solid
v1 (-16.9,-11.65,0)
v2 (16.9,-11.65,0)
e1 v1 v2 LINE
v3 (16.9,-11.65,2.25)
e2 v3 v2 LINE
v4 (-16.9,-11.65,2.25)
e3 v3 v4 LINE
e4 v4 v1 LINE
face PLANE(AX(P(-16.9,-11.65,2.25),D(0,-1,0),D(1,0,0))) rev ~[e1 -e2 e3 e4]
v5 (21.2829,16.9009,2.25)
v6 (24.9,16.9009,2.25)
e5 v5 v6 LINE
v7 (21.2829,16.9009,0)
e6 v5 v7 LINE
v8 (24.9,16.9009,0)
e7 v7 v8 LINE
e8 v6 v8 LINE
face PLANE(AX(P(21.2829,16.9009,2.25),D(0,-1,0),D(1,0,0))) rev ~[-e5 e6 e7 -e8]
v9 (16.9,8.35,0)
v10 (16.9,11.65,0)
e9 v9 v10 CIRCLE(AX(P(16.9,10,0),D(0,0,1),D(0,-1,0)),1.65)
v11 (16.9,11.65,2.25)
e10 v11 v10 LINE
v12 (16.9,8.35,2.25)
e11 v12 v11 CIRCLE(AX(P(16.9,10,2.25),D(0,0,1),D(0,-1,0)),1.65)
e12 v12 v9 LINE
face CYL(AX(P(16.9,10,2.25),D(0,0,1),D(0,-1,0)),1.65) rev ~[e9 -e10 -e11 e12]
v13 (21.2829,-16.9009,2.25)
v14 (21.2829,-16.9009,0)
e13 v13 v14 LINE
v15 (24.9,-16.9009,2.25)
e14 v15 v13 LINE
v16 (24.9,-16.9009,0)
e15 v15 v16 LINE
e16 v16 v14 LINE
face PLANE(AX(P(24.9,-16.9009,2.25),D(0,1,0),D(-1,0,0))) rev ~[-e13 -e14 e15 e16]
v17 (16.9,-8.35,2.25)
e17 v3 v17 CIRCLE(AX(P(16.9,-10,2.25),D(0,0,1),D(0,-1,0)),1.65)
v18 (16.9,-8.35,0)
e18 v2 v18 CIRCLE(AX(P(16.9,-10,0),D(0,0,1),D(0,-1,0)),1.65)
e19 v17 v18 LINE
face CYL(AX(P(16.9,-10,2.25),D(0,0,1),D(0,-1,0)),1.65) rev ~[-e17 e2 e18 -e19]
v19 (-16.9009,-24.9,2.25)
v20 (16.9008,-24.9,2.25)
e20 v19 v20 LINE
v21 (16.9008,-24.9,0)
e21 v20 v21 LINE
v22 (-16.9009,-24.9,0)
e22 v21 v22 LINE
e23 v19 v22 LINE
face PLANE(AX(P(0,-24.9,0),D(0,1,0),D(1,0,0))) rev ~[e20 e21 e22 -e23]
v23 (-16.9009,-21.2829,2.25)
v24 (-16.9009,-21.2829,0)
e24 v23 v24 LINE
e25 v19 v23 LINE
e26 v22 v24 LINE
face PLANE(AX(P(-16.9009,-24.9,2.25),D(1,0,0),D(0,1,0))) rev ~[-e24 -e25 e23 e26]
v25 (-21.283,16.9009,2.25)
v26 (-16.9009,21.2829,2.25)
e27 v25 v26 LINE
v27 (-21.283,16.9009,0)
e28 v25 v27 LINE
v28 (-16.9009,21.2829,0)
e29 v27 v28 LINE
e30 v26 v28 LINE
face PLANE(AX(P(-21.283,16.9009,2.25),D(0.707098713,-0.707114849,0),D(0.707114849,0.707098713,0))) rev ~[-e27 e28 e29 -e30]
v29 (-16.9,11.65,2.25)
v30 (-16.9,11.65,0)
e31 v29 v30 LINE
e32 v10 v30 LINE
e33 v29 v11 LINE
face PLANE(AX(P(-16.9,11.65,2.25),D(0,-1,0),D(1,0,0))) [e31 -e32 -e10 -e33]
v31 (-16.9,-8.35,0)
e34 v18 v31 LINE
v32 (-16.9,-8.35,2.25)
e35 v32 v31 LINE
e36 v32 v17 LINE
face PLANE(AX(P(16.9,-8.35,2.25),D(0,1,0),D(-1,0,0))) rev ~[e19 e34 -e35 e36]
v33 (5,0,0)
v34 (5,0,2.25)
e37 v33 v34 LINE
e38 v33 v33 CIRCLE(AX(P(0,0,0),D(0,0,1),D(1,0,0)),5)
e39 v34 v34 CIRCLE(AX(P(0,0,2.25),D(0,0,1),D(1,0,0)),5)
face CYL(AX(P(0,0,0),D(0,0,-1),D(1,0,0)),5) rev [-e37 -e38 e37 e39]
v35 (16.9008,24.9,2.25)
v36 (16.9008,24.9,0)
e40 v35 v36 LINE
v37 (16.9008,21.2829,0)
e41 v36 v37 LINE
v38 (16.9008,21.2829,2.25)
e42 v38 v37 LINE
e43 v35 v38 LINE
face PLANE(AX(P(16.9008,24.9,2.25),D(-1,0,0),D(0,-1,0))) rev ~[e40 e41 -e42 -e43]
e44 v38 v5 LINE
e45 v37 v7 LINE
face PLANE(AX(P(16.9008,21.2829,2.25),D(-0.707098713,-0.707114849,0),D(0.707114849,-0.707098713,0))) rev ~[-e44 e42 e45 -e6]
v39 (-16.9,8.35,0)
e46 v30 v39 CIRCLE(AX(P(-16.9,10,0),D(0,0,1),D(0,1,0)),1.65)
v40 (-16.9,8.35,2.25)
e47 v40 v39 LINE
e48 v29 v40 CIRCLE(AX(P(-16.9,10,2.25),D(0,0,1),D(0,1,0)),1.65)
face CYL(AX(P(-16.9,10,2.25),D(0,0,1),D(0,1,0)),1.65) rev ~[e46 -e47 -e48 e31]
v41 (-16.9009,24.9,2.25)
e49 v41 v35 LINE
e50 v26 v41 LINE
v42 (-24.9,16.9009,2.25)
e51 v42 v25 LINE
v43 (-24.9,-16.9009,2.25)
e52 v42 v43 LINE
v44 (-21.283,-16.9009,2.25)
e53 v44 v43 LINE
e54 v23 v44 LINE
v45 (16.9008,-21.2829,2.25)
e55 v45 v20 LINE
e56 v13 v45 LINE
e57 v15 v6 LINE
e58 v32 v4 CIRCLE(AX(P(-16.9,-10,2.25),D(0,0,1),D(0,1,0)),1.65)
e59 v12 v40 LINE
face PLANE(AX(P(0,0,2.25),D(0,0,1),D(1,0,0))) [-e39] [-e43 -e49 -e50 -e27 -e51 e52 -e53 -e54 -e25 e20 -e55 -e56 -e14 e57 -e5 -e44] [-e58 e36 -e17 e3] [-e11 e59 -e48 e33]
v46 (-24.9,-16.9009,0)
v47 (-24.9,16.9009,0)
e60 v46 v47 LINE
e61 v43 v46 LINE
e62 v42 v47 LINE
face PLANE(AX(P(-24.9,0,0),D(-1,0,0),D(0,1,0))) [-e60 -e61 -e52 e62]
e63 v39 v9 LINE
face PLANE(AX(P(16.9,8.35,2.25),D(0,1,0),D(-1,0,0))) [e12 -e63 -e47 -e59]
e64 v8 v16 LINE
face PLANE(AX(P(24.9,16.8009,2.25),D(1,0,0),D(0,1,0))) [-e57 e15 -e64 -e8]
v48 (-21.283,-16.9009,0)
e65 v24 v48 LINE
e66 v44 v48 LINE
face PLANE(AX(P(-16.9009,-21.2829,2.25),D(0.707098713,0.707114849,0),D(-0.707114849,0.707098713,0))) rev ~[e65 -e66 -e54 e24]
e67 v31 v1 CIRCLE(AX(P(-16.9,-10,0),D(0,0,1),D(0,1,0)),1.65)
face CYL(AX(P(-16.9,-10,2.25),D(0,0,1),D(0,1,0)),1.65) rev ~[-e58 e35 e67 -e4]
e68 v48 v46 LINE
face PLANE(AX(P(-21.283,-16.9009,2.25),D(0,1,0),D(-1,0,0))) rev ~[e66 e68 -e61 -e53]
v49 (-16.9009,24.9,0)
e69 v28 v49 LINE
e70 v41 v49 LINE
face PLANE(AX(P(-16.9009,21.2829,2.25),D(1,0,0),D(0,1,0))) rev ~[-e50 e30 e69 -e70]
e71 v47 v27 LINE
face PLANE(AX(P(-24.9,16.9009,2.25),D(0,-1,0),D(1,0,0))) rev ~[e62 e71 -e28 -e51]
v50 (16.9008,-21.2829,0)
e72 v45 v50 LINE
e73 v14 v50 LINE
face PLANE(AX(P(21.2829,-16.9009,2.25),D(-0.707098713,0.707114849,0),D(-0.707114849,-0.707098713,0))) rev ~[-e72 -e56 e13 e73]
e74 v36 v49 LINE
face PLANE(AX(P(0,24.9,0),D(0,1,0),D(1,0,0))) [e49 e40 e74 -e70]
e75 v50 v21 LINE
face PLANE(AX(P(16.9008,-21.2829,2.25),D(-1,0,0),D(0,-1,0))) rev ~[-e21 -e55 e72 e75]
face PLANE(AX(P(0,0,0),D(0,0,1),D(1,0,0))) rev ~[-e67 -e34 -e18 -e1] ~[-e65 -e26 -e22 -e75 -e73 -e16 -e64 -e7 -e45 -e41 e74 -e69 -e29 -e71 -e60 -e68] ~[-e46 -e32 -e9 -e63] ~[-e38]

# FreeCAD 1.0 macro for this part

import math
import FreeCAD as App
import Part
import Sketcher
from FreeCAD import Vector
Q = App.Units.Quantity


def add_polygon(sketch, points):
    """Adds a closed chain of lines whose ends are joined by coincident constraints."""
    first, n = sketch.GeometryCount, len(points)
    for a, b in zip(points, points[1:] + points[:1]):
        sketch.addGeometry(Part.LineSegment(App.Vector(*a, 0), App.Vector(*b, 0)), False)
    for i in range(n):
        sketch.addConstraint(Sketcher.Constraint("Coincident", first + i, 2, first + (i + 1) % n, 1))

doc = App.newDocument("Part")
params = doc.addObject("Spreadsheet::Sheet", "Params")
for row, (alias, value) in enumerate([
    ("sketch1_diameter", "10 mm"),
    ("sketch1_length", "6.28 mm"),
    ("pad1_length", "2.25 mm"),
    ("sketch2_diameter", "3.3 mm"),
    ("hole_diameter", "3.3 mm"),
    ("hole_depth", "12 mm"),
    ("sketch3_radius", "1.65 mm"),
    ("sketch3_width", "33.8 mm"),
    ("sketch4_width", "0.1 mm"),
    ("sketch4_length", "6.28 mm"),
    ("pad2_length", "2.25 mm"),
], start=1):
    params.set(f"A{row}", alias)
    params.set(f"B{row}", "=" + value)
    params.setAlias(f"B{row}", alias)

body = doc.addObject("PartDesign::Body", "Body")

# Sketch on XY plane
sketch1 = body.newObject("Sketcher::SketchObject", "Sketch")
sketch1.AttachmentSupport = (doc.getObject("XY_Plane"), [""])
sketch1.MapMode = "FlatFace"
add_polygon(sketch1, [(16.8, 24.9), (-16.8, 24.9), (-16.8, 21.2), (-21.2, 16.8), (-24.9, 16.8), (-24.9, -16.8), (-21.2, -16.8), (-16.8, -21.2), (-16.8, -24.9), (16.8, -24.9), (16.8, -21.2), (21.2, -16.8), (24.9, -16.8), (24.9, 16.8), (21.2, 16.8), (16.8, 21.2)])  # lines 0-15
sketch1.addGeometry(Part.Circle(Vector(0, 0, 0), Vector(0, 0, 1), 5), False)  # 16
sketch1.addConstraint(Sketcher.Constraint("Horizontal", 0))
sketch1.addConstraint(Sketcher.Constraint("Vertical", 1))
sketch1.addConstraint(Sketcher.Constraint("Horizontal", 3))
sketch1.addConstraint(Sketcher.Constraint("Vertical", 4))
sketch1.addConstraint(Sketcher.Constraint("Horizontal", 5))
sketch1.addConstraint(Sketcher.Constraint("Vertical", 7))
sketch1.addConstraint(Sketcher.Constraint("Horizontal", 8))
sketch1.addConstraint(Sketcher.Constraint("Vertical", 9))
sketch1.addConstraint(Sketcher.Constraint("Horizontal", 11))
sketch1.addConstraint(Sketcher.Constraint("Vertical", 12))
sketch1.addConstraint(Sketcher.Constraint("Horizontal", 13))
sketch1.addConstraint(Sketcher.Constraint("Vertical", 15))
sketch1.addConstraint(Sketcher.Constraint("Coincident", 16, 3, -1, 1))
sketch1.addConstraint(Sketcher.Constraint("Symmetric", 0, 2, 8, 2, -1, 1))
sketch1.addConstraint(Sketcher.Constraint("Symmetric", 2, 2, 10, 2, -1, 1))
sketch1.addConstraint(Sketcher.Constraint("Symmetric", 4, 2, 12, 2, -1, 1))
sketch1.addConstraint(Sketcher.Constraint("Symmetric", 6, 2, 14, 2, -1, 1))
sketch1.addConstraint(Sketcher.Constraint("Symmetric", 6, 2, 9, 2, -2))
sketch1.addConstraint(Sketcher.Constraint("Symmetric", 5, 2, 10, 2, -2))
sketch1.addConstraint(Sketcher.Constraint("Perpendicular", 2, 6))
sketch1.addConstraint(Sketcher.Constraint("Perpendicular", 6, 10))
sketch1.addConstraint(Sketcher.Constraint("Perpendicular", 10, 14))
sketch1.addConstraint(Sketcher.Constraint("Equal", 13, 1))
sketch1.addConstraint(Sketcher.Constraint("Equal", 8, 4))
sketch1.addConstraint(Sketcher.Constraint("Diameter", 16, Q("10 mm")))
sketch1.addConstraint(Sketcher.Constraint("DistanceY", -1, 1, 0, 2, Q("24.9 mm")))
sketch1.addConstraint(Sketcher.Constraint("Distance", 2, Q("6.28 mm")))
sketch1.addConstraint(Sketcher.Constraint("DistanceX", 0, 2, 0, 1, Q("33.6018 mm")))
sketch1.setExpression("Constraints[40]", "Params.sketch1_diameter")
sketch1.setExpression("Constraints[42]", "Params.sketch1_length")
pad1 = body.newObject("PartDesign::Pad", "Pad")
pad1.Profile = sketch1
pad1.setExpression("Length", "Params.pad1_length")

# Sketch on XY plane
sketch2 = body.newObject("Sketcher::SketchObject", "Sketch001")
sketch2.AttachmentSupport = (doc.getObject("XY_Plane"), [""])
sketch2.MapMode = "FlatFace"
sketch2.addGeometry(Part.Circle(Vector(9.7, -10, 0), Vector(0, 0, 1), 1.6), False)
sketch2.addGeometry(Part.Circle(Vector(9.7, 10, 0), Vector(0, 0, 1), 1.6), False)
sketch2.addConstraint(Sketcher.Constraint("Equal", 0, 1))
sketch2.addConstraint(Sketcher.Constraint("Symmetric", 0, 3, 1, 3, -1))
sketch2.addConstraint(Sketcher.Constraint("Diameter", 0, Q("3.3 mm")))
sketch2.addConstraint(Sketcher.Constraint("DistanceY", 0, 3, -1, 1, Q("10 mm")))
sketch2.addConstraint(Sketcher.Constraint("DistanceX", -1, 1, 0, 3, Q("9.7 mm")))
sketch2.setExpression("Constraints[2]", "Params.sketch2_diameter")
doc.recompute()
hole = body.newObject("PartDesign::Hole", "Hole")
hole.Profile = sketch2
hole.ThreadType = "None"
hole.setExpression("Diameter", "Params.hole_diameter")
hole.DepthType = "Dimension"
hole.setExpression("Depth", "Params.hole_depth")
hole.DrillPoint = "Angled"
hole.DrillPointAngle = 118
hole.Reversed = True

# Sketch on XY plane
sketch3 = body.newObject("Sketcher::SketchObject", "Sketch002")
sketch3.AttachmentSupport = (doc.getObject("XY_Plane"), [""])
sketch3.MapMode = "FlatFace"
sketch3.AttachmentOffset = App.Placement(Vector(0, 0, 2.25), App.Rotation())
sketch3.addGeometry(Part.LineSegment(Vector(-16.9, 8.3, 0), Vector(16.9, 8.3, 0)), False)
sketch3.addGeometry(Part.ArcOfCircle(Part.Circle(Vector(16.9, 10, 0), Vector(0, 0, 1), 1.7), math.radians(-90), math.radians(90)), False)
sketch3.addGeometry(Part.LineSegment(Vector(16.9, 11.7, 0), Vector(-16.9, 11.7, 0)), False)
sketch3.addGeometry(Part.ArcOfCircle(Part.Circle(Vector(-16.9, 10, 0), Vector(0, 0, 1), 1.7), math.radians(90), math.radians(270)), False)
sketch3.addGeometry(Part.ArcOfCircle(Part.Circle(Vector(16.9, -10, 0), Vector(0, 0, 1), 1.6), math.radians(-90), math.radians(90)), False)
sketch3.addGeometry(Part.LineSegment(Vector(16.9, -8.3, 0), Vector(-16.9, -8.3, 0)), False)
sketch3.addGeometry(Part.ArcOfCircle(Part.Circle(Vector(-16.9, -10, 0), Vector(0, 0, 1), 1.6), math.radians(90), math.radians(270)), False)
sketch3.addGeometry(Part.LineSegment(Vector(-16.9, -11.7, 0), Vector(16.9, -11.7, 0)), False)
sketch3.addConstraint(Sketcher.Constraint("Tangent", 0, 2, 1, 1))
sketch3.addConstraint(Sketcher.Constraint("Tangent", 1, 2, 2, 1))
sketch3.addConstraint(Sketcher.Constraint("Tangent", 2, 2, 3, 1))
sketch3.addConstraint(Sketcher.Constraint("Tangent", 3, 2, 0, 1))
sketch3.addConstraint(Sketcher.Constraint("Tangent", 4, 2, 5, 1))
sketch3.addConstraint(Sketcher.Constraint("Tangent", 5, 2, 6, 1))
sketch3.addConstraint(Sketcher.Constraint("Tangent", 6, 2, 7, 1))
sketch3.addConstraint(Sketcher.Constraint("Tangent", 7, 2, 4, 1))
sketch3.addConstraint(Sketcher.Constraint("Horizontal", 0))
sketch3.addConstraint(Sketcher.Constraint("Horizontal", 2))
sketch3.addConstraint(Sketcher.Constraint("Horizontal", 5))
sketch3.addConstraint(Sketcher.Constraint("Horizontal", 7))
sketch3.addConstraint(Sketcher.Constraint("Equal", 3, 4))
sketch3.addConstraint(Sketcher.Constraint("Symmetric", 3, 3, 4, 3, -1, 1))
sketch3.addConstraint(Sketcher.Constraint("Vertical", 1, 3, 4, 3))
sketch3.addConstraint(Sketcher.Constraint("Vertical", 3, 3, 6, 3))
sketch3.addConstraint(Sketcher.Constraint("Radius", 1, Q("1.65 mm")))
sketch3.addConstraint(Sketcher.Constraint("DistanceX", 0, 1, 0, 2, Q("33.8 mm")))
sketch3.addConstraint(Sketcher.Constraint("DistanceY", -1, 1, 1, 3, Q("10 mm")))
sketch3.setExpression("Constraints[16]", "Params.sketch3_radius")
sketch3.setExpression("Constraints[17]", "Params.sketch3_width")
pocket1 = body.newObject("PartDesign::Pocket", "Pocket")
pocket1.Profile = sketch3
pocket1.Type = "ThroughAll"

# Sketch on XY plane
sketch4 = body.newObject("Sketcher::SketchObject", "Sketch003")
sketch4.AttachmentSupport = (doc.getObject("XY_Plane"), [""])
sketch4.MapMode = "FlatFace"
sketch4.AttachmentOffset = App.Placement(Vector(0, 0, 2.25), App.Rotation())
add_polygon(sketch4, [(-21.24, -16.8), (-24.9, -16.8), (-24.9, -16.9), (-21.28, -16.9), (-16.9, -21.28), (-16.9, -24.9), (-16.8, -24.9), (-16.8, -21.24)])  # lines 0-7
add_polygon(sketch4, [(-16.8, 21.24), (-16.8, 24.9), (-16.9, 24.9), (-16.9, 21.28), (-21.28, 16.9), (-24.9, 16.9), (-24.9, 16.8), (-21.24, 16.8)])  # lines 8-15
add_polygon(sketch4, [(16.8, 24.9), (16.8, 21.24), (21.24, 16.8), (24.9, 16.8), (24.9, 16.9), (21.28, 16.9), (16.9, 21.28), (16.9, 24.9)])  # lines 16-23
add_polygon(sketch4, [(16.8, -21.24), (16.8, -24.9), (16.9, -24.9), (16.9, -21.28), (21.28, -16.9), (24.9, -16.9), (24.9, -16.8), (21.24, -16.8)])  # lines 24-31
sketch4.addConstraint(Sketcher.Constraint("Horizontal", 0))
sketch4.addConstraint(Sketcher.Constraint("Vertical", 1))
sketch4.addConstraint(Sketcher.Constraint("Horizontal", 2))
sketch4.addConstraint(Sketcher.Constraint("Vertical", 4))
sketch4.addConstraint(Sketcher.Constraint("Horizontal", 5))
sketch4.addConstraint(Sketcher.Constraint("Vertical", 6))
sketch4.addConstraint(Sketcher.Constraint("Vertical", 8))
sketch4.addConstraint(Sketcher.Constraint("Horizontal", 9))
sketch4.addConstraint(Sketcher.Constraint("Vertical", 10))
sketch4.addConstraint(Sketcher.Constraint("Horizontal", 12))
sketch4.addConstraint(Sketcher.Constraint("Vertical", 13))
sketch4.addConstraint(Sketcher.Constraint("Horizontal", 14))
sketch4.addConstraint(Sketcher.Constraint("Vertical", 16))
sketch4.addConstraint(Sketcher.Constraint("Horizontal", 18))
sketch4.addConstraint(Sketcher.Constraint("Vertical", 19))
sketch4.addConstraint(Sketcher.Constraint("Horizontal", 20))
sketch4.addConstraint(Sketcher.Constraint("Vertical", 22))
sketch4.addConstraint(Sketcher.Constraint("Horizontal", 23))
sketch4.addConstraint(Sketcher.Constraint("Vertical", 24))
sketch4.addConstraint(Sketcher.Constraint("Horizontal", 25))
sketch4.addConstraint(Sketcher.Constraint("Vertical", 26))
sketch4.addConstraint(Sketcher.Constraint("Horizontal", 28))
sketch4.addConstraint(Sketcher.Constraint("Vertical", 29))
sketch4.addConstraint(Sketcher.Constraint("Horizontal", 30))
sketch4.addConstraint(Sketcher.Constraint("Symmetric", 6, 2, 16, 2, -1, 1))
sketch4.addConstraint(Sketcher.Constraint("Symmetric", 7, 2, 17, 2, -1, 1))
sketch4.addConstraint(Sketcher.Constraint("Symmetric", 1, 2, 19, 2, -1, 1))
sketch4.addConstraint(Sketcher.Constraint("Symmetric", 3, 2, 21, 2, -1, 1))
sketch4.addConstraint(Sketcher.Constraint("Symmetric", 8, 2, 24, 2, -1, 1))
sketch4.addConstraint(Sketcher.Constraint("Symmetric", 10, 2, 26, 2, -1, 1))
sketch4.addConstraint(Sketcher.Constraint("Symmetric", 11, 2, 27, 2, -1, 1))
sketch4.addConstraint(Sketcher.Constraint("Symmetric", 13, 2, 29, 2, -1, 1))
sketch4.addConstraint(Sketcher.Constraint("Symmetric", 15, 2, 16, 2, -2))
sketch4.addConstraint(Sketcher.Constraint("Symmetric", 14, 2, 17, 2, -2))
sketch4.addConstraint(Sketcher.Constraint("Symmetric", 12, 2, 19, 2, -2))
sketch4.addConstraint(Sketcher.Constraint("Symmetric", 10, 2, 21, 2, -2))
sketch4.addConstraint(Sketcher.Constraint("Parallel", 3, 7))
sketch4.addConstraint(Sketcher.Constraint("Perpendicular", 7, 11))
sketch4.addConstraint(Sketcher.Constraint("Parallel", 11, 15))
sketch4.addConstraint(Sketcher.Constraint("Parallel", 17, 21))
sketch4.addConstraint(Sketcher.Constraint("Parallel", 27, 31))
sketch4.addConstraint(Sketcher.Constraint("Horizontal", 9, 2, 22, 2))
sketch4.addConstraint(Sketcher.Constraint("Horizontal", 5, 2, 24, 2))
sketch4.addConstraint(Sketcher.Constraint("Horizontal", 6, 2, 31, 2))
sketch4.addConstraint(Sketcher.Constraint("Equal", 25, 1))
sketch4.addConstraint(Sketcher.Constraint("Equal", 28, 4))
sketch4.addConstraint(Sketcher.Constraint("DistanceX", 5, 1, 5, 2, Q("0.1 mm")))
sketch4.addConstraint(Sketcher.Constraint("DistanceX", 0, 2, -1, 1, Q("24.9 mm")))
sketch4.addConstraint(Sketcher.Constraint("DistanceY", 4, 2, -1, 1, Q("24.9 mm")))
sketch4.addConstraint(Sketcher.Constraint("Distance", 7, Q("6.28 mm")))
sketch4.addConstraint(Sketcher.Constraint("DistanceX", 2, 1, 2, 2, Q("3.617 mm")))
sketch4.addConstraint(Sketcher.Constraint("DistanceX", 0, 2, 0, 1, Q("3.6585 mm")))
sketch4.setExpression("Constraints[78]", "Params.sketch4_width")
sketch4.setExpression("Constraints[81]", "Params.sketch4_length")
pad2 = body.newObject("PartDesign::Pad", "Pad001")
pad2.Profile = sketch4
pad2.setExpression("Length", "Params.pad2_length")
pad2.Reversed = True

doc.recompute()
